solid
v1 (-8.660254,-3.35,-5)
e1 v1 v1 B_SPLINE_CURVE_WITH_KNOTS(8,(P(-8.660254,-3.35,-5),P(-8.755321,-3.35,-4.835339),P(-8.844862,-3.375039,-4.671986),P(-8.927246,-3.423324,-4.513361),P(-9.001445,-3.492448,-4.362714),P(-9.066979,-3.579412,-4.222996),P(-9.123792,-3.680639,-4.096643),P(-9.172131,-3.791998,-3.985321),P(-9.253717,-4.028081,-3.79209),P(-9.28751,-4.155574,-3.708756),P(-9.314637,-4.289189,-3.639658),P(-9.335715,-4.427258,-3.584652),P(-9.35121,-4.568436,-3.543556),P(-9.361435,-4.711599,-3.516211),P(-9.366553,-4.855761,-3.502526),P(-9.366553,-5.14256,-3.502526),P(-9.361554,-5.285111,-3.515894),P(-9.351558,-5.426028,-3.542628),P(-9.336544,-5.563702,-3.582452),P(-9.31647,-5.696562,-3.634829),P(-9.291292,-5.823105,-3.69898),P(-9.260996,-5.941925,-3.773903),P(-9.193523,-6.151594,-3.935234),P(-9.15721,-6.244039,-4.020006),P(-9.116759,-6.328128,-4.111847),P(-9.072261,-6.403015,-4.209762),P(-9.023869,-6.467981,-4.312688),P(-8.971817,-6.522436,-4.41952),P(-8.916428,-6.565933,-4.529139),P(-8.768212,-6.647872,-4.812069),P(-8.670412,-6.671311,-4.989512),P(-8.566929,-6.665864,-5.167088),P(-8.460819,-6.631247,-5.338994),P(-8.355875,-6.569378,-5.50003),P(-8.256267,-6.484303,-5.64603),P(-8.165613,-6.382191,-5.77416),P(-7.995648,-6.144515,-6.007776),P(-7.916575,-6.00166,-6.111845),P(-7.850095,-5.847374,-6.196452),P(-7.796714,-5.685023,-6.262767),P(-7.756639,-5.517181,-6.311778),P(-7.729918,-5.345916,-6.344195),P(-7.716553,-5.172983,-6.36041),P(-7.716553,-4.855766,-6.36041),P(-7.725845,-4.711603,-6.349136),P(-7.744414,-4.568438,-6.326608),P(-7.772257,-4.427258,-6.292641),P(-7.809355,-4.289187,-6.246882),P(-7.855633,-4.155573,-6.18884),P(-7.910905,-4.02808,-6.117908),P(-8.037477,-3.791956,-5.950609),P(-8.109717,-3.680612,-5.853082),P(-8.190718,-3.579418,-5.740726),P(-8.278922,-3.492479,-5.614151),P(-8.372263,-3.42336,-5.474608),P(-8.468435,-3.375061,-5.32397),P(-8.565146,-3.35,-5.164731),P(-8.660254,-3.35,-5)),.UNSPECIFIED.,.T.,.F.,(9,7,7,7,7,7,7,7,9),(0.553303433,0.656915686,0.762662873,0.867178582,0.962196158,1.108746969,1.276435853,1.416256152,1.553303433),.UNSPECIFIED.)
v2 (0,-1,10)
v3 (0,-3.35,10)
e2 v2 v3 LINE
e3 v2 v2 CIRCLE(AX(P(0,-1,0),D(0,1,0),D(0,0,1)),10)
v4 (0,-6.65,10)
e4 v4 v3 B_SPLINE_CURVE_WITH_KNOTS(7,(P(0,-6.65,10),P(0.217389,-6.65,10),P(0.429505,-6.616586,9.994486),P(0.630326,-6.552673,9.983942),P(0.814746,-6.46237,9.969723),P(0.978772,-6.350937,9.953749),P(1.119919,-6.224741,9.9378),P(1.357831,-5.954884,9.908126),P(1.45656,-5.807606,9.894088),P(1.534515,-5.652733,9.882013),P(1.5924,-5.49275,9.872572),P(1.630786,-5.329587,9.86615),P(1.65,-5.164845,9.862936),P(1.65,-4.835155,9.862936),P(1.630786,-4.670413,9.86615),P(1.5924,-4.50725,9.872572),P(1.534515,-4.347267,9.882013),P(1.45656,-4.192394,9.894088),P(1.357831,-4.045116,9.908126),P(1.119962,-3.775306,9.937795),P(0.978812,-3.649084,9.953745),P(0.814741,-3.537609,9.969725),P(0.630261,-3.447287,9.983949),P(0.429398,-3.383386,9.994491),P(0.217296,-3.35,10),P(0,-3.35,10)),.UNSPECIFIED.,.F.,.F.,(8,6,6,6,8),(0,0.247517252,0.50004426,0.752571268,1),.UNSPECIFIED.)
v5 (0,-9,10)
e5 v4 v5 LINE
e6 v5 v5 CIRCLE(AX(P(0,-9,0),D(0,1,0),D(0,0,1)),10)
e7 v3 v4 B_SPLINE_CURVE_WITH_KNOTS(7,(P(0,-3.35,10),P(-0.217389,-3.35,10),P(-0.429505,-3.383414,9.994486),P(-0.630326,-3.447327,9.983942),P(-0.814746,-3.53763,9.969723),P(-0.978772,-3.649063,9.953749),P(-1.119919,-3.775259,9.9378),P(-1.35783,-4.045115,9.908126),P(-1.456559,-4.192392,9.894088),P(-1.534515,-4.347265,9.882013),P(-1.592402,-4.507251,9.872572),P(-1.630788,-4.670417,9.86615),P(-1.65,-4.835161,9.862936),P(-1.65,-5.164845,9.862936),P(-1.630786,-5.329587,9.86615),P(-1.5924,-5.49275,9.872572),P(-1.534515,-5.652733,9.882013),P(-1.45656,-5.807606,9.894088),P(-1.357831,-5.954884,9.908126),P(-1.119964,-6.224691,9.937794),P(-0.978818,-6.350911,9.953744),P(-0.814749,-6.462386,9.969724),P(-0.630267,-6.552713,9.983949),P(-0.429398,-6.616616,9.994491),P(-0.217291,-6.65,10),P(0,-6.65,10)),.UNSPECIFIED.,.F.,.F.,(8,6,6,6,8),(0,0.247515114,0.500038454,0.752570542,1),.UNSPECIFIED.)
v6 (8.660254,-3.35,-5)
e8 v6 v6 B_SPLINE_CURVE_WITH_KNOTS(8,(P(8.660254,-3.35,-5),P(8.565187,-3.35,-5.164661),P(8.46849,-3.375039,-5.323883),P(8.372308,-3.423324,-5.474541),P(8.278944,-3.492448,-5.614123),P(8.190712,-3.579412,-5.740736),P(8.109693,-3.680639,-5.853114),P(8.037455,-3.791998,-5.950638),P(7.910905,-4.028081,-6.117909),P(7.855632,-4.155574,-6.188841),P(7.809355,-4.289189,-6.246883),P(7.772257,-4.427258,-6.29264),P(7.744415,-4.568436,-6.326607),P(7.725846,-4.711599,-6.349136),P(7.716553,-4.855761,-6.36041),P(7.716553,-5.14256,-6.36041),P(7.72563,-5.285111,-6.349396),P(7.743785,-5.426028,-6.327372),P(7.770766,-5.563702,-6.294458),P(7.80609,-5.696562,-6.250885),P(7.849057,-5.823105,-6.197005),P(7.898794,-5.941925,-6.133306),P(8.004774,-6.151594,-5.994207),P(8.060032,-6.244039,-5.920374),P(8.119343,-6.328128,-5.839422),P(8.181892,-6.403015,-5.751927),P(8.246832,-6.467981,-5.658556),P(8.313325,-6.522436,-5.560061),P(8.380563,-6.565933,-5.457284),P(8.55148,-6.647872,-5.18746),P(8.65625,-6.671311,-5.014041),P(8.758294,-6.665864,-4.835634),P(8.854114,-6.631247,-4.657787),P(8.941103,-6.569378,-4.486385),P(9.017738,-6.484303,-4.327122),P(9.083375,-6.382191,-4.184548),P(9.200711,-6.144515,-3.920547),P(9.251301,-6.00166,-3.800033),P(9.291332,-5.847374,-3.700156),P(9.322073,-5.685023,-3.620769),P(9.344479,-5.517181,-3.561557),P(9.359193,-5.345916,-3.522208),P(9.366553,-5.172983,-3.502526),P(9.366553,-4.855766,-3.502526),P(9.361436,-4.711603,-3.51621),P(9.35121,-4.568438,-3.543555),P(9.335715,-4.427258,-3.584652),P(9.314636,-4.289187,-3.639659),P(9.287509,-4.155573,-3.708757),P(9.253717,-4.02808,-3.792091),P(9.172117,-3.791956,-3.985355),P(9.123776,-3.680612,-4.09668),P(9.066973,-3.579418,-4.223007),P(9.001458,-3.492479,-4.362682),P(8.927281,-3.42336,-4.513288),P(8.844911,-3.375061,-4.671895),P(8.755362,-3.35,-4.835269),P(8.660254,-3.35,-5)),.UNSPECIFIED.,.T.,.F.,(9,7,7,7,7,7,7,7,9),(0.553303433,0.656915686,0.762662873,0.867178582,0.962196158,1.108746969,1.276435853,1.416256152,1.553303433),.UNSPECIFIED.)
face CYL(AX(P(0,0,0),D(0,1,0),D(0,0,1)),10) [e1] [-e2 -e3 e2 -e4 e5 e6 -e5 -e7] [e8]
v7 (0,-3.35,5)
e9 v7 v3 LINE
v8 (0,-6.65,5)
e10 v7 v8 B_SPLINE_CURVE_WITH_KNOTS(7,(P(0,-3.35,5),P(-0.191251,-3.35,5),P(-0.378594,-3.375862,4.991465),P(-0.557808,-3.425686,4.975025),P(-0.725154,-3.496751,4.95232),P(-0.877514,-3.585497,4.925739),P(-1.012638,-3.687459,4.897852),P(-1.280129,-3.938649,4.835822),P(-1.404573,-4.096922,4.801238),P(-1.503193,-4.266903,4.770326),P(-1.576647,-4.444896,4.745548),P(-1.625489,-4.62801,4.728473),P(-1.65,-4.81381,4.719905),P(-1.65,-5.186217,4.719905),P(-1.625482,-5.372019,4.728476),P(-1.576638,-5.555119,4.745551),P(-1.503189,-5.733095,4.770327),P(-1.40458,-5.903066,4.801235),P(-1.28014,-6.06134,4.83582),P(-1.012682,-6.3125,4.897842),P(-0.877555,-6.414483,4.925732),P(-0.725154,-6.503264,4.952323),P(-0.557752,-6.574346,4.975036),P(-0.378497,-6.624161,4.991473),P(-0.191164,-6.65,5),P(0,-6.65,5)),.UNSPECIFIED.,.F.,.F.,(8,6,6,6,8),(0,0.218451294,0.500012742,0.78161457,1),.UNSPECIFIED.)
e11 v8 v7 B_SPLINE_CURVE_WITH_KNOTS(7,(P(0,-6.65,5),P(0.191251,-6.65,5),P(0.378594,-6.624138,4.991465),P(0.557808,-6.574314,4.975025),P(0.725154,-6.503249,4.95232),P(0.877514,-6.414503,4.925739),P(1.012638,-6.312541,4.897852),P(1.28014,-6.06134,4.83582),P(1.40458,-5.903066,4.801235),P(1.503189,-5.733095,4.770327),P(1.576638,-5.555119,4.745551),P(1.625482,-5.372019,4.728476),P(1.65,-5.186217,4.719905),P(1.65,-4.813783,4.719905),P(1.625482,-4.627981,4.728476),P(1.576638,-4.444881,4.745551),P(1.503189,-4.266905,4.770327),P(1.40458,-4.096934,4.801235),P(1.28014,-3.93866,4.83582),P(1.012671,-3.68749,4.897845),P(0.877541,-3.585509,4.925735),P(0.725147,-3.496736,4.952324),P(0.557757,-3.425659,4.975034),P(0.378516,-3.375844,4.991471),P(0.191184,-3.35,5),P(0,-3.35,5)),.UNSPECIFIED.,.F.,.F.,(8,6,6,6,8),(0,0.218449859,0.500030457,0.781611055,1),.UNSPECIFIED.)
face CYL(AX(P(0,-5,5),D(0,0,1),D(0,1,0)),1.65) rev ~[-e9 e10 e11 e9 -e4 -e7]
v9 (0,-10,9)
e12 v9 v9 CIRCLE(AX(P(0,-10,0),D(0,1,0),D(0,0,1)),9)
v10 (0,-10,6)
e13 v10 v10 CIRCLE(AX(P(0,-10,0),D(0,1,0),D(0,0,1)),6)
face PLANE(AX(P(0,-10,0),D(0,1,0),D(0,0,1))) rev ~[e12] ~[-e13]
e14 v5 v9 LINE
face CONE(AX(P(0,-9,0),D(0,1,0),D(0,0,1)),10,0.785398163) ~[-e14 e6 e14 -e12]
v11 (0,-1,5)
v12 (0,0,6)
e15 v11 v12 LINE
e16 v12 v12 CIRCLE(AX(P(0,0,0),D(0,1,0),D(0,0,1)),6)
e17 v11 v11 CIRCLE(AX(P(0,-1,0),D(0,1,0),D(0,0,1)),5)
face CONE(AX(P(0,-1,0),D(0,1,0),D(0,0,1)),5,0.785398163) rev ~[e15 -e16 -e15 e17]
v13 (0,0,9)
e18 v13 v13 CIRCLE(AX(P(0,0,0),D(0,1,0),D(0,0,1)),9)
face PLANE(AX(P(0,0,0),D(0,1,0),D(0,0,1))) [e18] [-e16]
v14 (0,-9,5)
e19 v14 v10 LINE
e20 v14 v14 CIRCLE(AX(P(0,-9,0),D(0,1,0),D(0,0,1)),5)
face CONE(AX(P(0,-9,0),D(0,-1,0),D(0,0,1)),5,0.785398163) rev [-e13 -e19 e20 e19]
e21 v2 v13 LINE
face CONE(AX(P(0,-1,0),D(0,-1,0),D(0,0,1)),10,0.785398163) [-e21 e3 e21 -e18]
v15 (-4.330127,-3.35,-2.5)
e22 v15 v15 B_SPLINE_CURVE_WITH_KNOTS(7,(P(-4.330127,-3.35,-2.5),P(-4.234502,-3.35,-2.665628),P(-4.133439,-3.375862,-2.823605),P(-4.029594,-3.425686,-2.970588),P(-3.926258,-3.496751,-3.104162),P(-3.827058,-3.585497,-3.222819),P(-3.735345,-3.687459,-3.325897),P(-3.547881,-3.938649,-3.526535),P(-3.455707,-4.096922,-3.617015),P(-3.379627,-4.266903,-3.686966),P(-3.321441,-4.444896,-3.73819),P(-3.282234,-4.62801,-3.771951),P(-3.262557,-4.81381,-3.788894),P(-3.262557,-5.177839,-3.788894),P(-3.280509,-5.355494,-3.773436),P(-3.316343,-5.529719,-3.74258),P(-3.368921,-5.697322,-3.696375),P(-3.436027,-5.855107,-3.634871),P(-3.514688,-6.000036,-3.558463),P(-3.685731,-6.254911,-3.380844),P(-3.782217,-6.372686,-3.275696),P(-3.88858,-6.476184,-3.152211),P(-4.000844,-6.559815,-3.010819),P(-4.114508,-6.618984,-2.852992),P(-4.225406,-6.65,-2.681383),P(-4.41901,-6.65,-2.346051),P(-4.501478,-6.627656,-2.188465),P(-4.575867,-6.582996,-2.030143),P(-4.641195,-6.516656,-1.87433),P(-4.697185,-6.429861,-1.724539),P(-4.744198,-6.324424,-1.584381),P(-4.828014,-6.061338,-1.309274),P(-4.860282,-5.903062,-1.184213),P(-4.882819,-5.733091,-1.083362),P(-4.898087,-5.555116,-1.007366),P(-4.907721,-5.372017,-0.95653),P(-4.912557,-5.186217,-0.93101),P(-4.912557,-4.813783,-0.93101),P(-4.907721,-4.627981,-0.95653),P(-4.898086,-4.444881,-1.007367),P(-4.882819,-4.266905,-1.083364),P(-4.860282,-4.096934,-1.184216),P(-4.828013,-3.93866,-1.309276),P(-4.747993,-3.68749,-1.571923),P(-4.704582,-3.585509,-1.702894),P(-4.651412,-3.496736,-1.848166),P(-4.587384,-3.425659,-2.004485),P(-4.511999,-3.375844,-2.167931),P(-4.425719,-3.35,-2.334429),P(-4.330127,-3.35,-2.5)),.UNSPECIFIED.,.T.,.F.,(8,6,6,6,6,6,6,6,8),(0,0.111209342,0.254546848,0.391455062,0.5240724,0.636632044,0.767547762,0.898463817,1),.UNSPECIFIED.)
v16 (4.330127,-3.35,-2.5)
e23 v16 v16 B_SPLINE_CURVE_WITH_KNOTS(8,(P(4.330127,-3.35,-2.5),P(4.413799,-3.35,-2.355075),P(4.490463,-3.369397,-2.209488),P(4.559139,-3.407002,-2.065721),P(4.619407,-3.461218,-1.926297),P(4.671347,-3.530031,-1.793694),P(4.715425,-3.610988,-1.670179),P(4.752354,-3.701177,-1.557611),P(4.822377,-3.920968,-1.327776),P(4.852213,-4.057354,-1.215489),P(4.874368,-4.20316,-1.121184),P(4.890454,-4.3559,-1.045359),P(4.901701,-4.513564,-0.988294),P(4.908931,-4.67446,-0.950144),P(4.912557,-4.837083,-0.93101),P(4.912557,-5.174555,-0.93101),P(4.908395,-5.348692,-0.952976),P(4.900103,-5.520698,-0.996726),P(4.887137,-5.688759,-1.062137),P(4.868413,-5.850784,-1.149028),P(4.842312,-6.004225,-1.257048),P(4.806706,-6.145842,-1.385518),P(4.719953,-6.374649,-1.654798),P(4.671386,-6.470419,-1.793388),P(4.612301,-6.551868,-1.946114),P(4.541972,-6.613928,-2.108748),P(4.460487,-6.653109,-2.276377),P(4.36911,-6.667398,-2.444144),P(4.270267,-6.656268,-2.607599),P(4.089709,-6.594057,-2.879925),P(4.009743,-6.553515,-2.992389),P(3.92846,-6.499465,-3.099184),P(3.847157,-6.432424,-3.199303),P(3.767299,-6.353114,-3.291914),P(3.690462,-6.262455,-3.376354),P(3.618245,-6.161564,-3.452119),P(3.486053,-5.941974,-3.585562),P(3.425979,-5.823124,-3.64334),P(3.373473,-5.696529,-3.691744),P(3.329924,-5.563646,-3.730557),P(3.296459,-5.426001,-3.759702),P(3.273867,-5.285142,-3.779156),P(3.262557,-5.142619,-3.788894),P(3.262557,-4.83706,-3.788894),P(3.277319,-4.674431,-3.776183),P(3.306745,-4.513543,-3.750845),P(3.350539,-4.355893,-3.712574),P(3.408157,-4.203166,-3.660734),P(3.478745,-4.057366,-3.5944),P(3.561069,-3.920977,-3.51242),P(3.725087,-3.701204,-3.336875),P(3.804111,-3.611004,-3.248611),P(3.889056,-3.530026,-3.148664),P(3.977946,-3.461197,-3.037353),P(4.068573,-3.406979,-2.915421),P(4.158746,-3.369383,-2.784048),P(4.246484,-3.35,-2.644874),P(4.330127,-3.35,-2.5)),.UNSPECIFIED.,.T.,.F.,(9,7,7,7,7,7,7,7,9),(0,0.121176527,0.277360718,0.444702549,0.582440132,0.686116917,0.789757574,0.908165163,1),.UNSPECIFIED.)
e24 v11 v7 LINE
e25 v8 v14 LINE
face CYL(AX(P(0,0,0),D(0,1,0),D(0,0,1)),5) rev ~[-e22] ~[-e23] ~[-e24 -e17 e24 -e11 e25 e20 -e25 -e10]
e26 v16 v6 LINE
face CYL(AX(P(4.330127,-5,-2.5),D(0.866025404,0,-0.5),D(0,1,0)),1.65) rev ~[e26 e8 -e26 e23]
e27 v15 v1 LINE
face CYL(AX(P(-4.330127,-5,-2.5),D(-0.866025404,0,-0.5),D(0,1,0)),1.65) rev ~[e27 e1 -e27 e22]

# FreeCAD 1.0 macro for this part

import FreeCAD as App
import Part
import Sketcher

V = App.Vector


def edges_at(feature, points):
    """Names of the edges that pass closest to the given points."""
    edges = feature.Shape.Edges
    near = lambda p: min(range(len(edges)), key=lambda i: edges[i].distToShape(Part.Vertex(*p))[0])
    return sorted({f"Edge{near(p) + 1}" for p in points})


def add_polygon(sketch, points):
    """Adds a closed chain of lines whose ends are joined by coincident constraints."""
    first, n = sketch.GeometryCount, len(points)
    for a, b in zip(points, points[1:] + points[:1]):
        sketch.addGeometry(Part.LineSegment(App.Vector(*a, 0), App.Vector(*b, 0)), False)
    for i in range(n):
        sketch.addConstraint(Sketcher.Constraint("Coincident", first + i, 2, first + (i + 1) % n, 1))

doc = App.newDocument("Part")
body = doc.addObject("PartDesign::Body", "Body")

# Sketch on XZ plane
sketch1 = body.newObject("Sketcher::SketchObject", "Sketch")
sketch1.AttachmentSupport = (doc.getObject("XZ_Plane"), [""])
sketch1.MapMode = "FlatFace"
sketch1.addGeometry([
    Part.Circle(V(0, 0, 0), V(0, 0, 1), 10),
    Part.Circle(V(0, 0, 0), V(0, 0, 1), 5),
], False)
sketch1.addConstraint([
    Sketcher.Constraint("Coincident", 0, 3, -1, 1),
    Sketcher.Constraint("Coincident", 1, 3, -1, 1),
    Sketcher.Constraint("Diameter", 0, 20.0),
    Sketcher.Constraint("Diameter", 1, 10.0),
])
pad1 = body.newObject("PartDesign::Pad", "Pad")
pad1.Profile = sketch1
pad1.Length = 10
doc.recompute()

chamfer = body.newObject("PartDesign::Chamfer", "Chamfer")
chamfer.Base = (pad1, edges_at(pad1, [
    (0, 0, -10),
    (0, -10, -10),
    (0, -10, -5),
    (0, 0, -5),
]))
chamfer.Size = 1

# Sketch on YZ plane
sketch2 = body.newObject("Sketcher::SketchObject", "Sketch001")
sketch2.AttachmentSupport = (doc.getObject("YZ_Plane"), [""])
sketch2.MapMode = "FlatFace"
add_polygon(sketch2, [(-5, 10), (-5, 0), (-3.4, 0), (-3.4, 10)])  # lines 0-3
sketch2.addGeometry(Part.LineSegment(V(-5, 0, 0), V(-5, 10, 0)), True)  # axis
sketch2.addConstraint([
    Sketcher.Constraint("Vertical", 0),
    Sketcher.Constraint("Horizontal", 1),
    Sketcher.Constraint("Vertical", 2),
    Sketcher.Constraint("Horizontal", 3),
    Sketcher.Constraint("Vertical", 4),
    Sketcher.Constraint("Coincident", 4, 1, 0, 2),
    Sketcher.Constraint("PointOnObject", 0, 2, -1),
    Sketcher.Constraint("Horizontal", 2, 2, 4, 2),
    Sketcher.Constraint("DistanceY", 0, 2, 0, 1, 10.0),
    Sketcher.Constraint("DistanceX", 0, 2, -1, 1, 5.0),
    Sketcher.Constraint("DistanceX", 1, 1, 1, 2, 1.65),
])
groove = body.newObject("PartDesign::Groove", "Groove")
groove.Profile = sketch2
groove.ReferenceAxis = (sketch2, ["Axis0"])
groove.Angle = 360
doc.recompute()

polarpattern = body.newObject("PartDesign::PolarPattern", "PolarPattern")
polarpattern.Originals = [groove]
polarpattern.Axis = (doc.getObject("Y_Axis"), [""])
polarpattern.Angle = 360
polarpattern.Occurrences = 3
body.Tip = polarpattern

doc.recompute()
